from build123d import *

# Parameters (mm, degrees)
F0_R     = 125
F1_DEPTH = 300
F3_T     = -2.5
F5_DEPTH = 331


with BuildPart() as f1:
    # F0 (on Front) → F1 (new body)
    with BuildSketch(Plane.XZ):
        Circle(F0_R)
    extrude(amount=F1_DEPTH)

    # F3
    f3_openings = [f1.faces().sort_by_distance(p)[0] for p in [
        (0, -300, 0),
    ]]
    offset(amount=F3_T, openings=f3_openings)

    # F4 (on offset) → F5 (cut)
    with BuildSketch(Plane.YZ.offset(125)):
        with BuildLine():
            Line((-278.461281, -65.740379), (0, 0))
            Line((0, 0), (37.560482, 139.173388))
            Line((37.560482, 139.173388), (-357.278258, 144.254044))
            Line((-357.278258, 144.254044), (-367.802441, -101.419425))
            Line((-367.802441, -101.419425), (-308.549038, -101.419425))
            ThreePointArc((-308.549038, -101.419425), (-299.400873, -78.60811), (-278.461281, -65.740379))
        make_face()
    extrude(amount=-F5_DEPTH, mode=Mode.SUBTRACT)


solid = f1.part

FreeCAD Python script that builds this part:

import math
import FreeCAD as App
import Part
import Sketcher
from FreeCAD import Vector
Q = App.Units.Quantity


def faces_at(feature, points):
    """Names of the faces that lie closest to the given points."""
    faces = feature.Shape.Faces
    near = lambda p: min(range(len(faces)), key=lambda i: faces[i].distToShape(Part.Vertex(*p))[0])
    return sorted({f"Face{near(p) + 1}" for p in points})

doc = App.newDocument("Part")
body = doc.addObject("PartDesign::Body", "Body")

# Sketch on XZ plane
sketch1 = body.newObject("Sketcher::SketchObject", "Sketch")
sketch1.AttachmentSupport = (doc.getObject("XZ_Plane"), [""])
sketch1.MapMode = "FlatFace"
sketch1.addGeometry(Part.Circle(Vector(0, 0, 0), Vector(0, 0, 1), 125), False)
sketch1.addConstraint(Sketcher.Constraint("Coincident", 0, 3, -1, 1))
sketch1.addConstraint(Sketcher.Constraint("Diameter", 0, Q("250 mm")))
pad1 = body.newObject("PartDesign::Pad", "Pad")
pad1.Profile = sketch1
pad1.Length = 300
doc.recompute()

thickness = body.newObject("PartDesign::Thickness", "Thickness")
thickness.Base = (pad1, faces_at(pad1, [(0, -300, 0)]))
thickness.Value = 2.5
thickness.Reversed = True
thickness.Join = "Arc"

# Sketch on YZ plane
sketch2 = body.newObject("Sketcher::SketchObject", "Sketch001")
sketch2.AttachmentSupport = (doc.getObject("YZ_Plane"), [""])
sketch2.MapMode = "FlatFace"
sketch2.AttachmentOffset = App.Placement(Vector(0, 0, 125), App.Rotation())
sketch2.addGeometry(Part.LineSegment(Vector(-278, -66, 0), Vector(0, 0, 0)), False)
sketch2.addGeometry(Part.LineSegment(Vector(0, 0, 0), Vector(38, 139, 0)), False)
sketch2.addGeometry(Part.LineSegment(Vector(38, 139, 0), Vector(-357, 144, 0)), False)
sketch2.addGeometry(Part.LineSegment(Vector(-357, 144, 0), Vector(-368, -101, 0)), False)
sketch2.addGeometry(Part.LineSegment(Vector(-368, -101, 0), Vector(-309, -101, 0)), False)
sketch2.addGeometry(Part.ArcOfCircle(Part.Circle(Vector(-269, -104, 0), Vector(0, 0, 1), 39), math.radians(103), math.radians(176)), False)
sketch2.addConstraint(Sketcher.Constraint("Coincident", 0, 2, 1, 1))
sketch2.addConstraint(Sketcher.Constraint("Coincident", 1, 2, 2, 1))
sketch2.addConstraint(Sketcher.Constraint("Coincident", 2, 2, 3, 1))
sketch2.addConstraint(Sketcher.Constraint("Coincident", 3, 2, 4, 1))
sketch2.addConstraint(Sketcher.Constraint("Coincident", 4, 2, 5, 2))
sketch2.addConstraint(Sketcher.Constraint("Tangent", 5, 1, 0, 1))
sketch2.addConstraint(Sketcher.Constraint("Horizontal", 4))
sketch2.addConstraint(Sketcher.Constraint("Coincident", 0, 2, -1, 1))
sketch2.addConstraint(Sketcher.Constraint("Radius", 5, Q("39.161613 mm")))
sketch2.addConstraint(Sketcher.Constraint("DistanceX", 4, 1, 4, 2, Q("59.253403 mm")))
sketch2.addConstraint(Sketcher.Constraint("DistanceX", 5, 3, -1, 1, Q("269.463189 mm")))
sketch2.addConstraint(Sketcher.Constraint("DistanceY", 5, 3, -1, 1, Q("103.854238 mm")))
sketch2.addConstraint(Sketcher.Constraint("DistanceX", 2, 2, -1, 1, Q("357.278258 mm")))
sketch2.addConstraint(Sketcher.Constraint("DistanceX", 3, 2, -1, 1, Q("367.802441 mm")))
sketch2.addConstraint(Sketcher.Constraint("DistanceX", 5, 3, 1, 2, Q("307.023671 mm")))
sketch2.addConstraint(Sketcher.Constraint("DistanceY", 3, 2, 2, 2, Q("245.673469 mm")))
sketch2.addConstraint(Sketcher.Constraint("Distance", 1, Q("144.152772 mm")))
pocket1 = body.newObject("PartDesign::Pocket", "Pocket")
pocket1.Profile = sketch2
pocket1.Length = 331

doc.recompute()
